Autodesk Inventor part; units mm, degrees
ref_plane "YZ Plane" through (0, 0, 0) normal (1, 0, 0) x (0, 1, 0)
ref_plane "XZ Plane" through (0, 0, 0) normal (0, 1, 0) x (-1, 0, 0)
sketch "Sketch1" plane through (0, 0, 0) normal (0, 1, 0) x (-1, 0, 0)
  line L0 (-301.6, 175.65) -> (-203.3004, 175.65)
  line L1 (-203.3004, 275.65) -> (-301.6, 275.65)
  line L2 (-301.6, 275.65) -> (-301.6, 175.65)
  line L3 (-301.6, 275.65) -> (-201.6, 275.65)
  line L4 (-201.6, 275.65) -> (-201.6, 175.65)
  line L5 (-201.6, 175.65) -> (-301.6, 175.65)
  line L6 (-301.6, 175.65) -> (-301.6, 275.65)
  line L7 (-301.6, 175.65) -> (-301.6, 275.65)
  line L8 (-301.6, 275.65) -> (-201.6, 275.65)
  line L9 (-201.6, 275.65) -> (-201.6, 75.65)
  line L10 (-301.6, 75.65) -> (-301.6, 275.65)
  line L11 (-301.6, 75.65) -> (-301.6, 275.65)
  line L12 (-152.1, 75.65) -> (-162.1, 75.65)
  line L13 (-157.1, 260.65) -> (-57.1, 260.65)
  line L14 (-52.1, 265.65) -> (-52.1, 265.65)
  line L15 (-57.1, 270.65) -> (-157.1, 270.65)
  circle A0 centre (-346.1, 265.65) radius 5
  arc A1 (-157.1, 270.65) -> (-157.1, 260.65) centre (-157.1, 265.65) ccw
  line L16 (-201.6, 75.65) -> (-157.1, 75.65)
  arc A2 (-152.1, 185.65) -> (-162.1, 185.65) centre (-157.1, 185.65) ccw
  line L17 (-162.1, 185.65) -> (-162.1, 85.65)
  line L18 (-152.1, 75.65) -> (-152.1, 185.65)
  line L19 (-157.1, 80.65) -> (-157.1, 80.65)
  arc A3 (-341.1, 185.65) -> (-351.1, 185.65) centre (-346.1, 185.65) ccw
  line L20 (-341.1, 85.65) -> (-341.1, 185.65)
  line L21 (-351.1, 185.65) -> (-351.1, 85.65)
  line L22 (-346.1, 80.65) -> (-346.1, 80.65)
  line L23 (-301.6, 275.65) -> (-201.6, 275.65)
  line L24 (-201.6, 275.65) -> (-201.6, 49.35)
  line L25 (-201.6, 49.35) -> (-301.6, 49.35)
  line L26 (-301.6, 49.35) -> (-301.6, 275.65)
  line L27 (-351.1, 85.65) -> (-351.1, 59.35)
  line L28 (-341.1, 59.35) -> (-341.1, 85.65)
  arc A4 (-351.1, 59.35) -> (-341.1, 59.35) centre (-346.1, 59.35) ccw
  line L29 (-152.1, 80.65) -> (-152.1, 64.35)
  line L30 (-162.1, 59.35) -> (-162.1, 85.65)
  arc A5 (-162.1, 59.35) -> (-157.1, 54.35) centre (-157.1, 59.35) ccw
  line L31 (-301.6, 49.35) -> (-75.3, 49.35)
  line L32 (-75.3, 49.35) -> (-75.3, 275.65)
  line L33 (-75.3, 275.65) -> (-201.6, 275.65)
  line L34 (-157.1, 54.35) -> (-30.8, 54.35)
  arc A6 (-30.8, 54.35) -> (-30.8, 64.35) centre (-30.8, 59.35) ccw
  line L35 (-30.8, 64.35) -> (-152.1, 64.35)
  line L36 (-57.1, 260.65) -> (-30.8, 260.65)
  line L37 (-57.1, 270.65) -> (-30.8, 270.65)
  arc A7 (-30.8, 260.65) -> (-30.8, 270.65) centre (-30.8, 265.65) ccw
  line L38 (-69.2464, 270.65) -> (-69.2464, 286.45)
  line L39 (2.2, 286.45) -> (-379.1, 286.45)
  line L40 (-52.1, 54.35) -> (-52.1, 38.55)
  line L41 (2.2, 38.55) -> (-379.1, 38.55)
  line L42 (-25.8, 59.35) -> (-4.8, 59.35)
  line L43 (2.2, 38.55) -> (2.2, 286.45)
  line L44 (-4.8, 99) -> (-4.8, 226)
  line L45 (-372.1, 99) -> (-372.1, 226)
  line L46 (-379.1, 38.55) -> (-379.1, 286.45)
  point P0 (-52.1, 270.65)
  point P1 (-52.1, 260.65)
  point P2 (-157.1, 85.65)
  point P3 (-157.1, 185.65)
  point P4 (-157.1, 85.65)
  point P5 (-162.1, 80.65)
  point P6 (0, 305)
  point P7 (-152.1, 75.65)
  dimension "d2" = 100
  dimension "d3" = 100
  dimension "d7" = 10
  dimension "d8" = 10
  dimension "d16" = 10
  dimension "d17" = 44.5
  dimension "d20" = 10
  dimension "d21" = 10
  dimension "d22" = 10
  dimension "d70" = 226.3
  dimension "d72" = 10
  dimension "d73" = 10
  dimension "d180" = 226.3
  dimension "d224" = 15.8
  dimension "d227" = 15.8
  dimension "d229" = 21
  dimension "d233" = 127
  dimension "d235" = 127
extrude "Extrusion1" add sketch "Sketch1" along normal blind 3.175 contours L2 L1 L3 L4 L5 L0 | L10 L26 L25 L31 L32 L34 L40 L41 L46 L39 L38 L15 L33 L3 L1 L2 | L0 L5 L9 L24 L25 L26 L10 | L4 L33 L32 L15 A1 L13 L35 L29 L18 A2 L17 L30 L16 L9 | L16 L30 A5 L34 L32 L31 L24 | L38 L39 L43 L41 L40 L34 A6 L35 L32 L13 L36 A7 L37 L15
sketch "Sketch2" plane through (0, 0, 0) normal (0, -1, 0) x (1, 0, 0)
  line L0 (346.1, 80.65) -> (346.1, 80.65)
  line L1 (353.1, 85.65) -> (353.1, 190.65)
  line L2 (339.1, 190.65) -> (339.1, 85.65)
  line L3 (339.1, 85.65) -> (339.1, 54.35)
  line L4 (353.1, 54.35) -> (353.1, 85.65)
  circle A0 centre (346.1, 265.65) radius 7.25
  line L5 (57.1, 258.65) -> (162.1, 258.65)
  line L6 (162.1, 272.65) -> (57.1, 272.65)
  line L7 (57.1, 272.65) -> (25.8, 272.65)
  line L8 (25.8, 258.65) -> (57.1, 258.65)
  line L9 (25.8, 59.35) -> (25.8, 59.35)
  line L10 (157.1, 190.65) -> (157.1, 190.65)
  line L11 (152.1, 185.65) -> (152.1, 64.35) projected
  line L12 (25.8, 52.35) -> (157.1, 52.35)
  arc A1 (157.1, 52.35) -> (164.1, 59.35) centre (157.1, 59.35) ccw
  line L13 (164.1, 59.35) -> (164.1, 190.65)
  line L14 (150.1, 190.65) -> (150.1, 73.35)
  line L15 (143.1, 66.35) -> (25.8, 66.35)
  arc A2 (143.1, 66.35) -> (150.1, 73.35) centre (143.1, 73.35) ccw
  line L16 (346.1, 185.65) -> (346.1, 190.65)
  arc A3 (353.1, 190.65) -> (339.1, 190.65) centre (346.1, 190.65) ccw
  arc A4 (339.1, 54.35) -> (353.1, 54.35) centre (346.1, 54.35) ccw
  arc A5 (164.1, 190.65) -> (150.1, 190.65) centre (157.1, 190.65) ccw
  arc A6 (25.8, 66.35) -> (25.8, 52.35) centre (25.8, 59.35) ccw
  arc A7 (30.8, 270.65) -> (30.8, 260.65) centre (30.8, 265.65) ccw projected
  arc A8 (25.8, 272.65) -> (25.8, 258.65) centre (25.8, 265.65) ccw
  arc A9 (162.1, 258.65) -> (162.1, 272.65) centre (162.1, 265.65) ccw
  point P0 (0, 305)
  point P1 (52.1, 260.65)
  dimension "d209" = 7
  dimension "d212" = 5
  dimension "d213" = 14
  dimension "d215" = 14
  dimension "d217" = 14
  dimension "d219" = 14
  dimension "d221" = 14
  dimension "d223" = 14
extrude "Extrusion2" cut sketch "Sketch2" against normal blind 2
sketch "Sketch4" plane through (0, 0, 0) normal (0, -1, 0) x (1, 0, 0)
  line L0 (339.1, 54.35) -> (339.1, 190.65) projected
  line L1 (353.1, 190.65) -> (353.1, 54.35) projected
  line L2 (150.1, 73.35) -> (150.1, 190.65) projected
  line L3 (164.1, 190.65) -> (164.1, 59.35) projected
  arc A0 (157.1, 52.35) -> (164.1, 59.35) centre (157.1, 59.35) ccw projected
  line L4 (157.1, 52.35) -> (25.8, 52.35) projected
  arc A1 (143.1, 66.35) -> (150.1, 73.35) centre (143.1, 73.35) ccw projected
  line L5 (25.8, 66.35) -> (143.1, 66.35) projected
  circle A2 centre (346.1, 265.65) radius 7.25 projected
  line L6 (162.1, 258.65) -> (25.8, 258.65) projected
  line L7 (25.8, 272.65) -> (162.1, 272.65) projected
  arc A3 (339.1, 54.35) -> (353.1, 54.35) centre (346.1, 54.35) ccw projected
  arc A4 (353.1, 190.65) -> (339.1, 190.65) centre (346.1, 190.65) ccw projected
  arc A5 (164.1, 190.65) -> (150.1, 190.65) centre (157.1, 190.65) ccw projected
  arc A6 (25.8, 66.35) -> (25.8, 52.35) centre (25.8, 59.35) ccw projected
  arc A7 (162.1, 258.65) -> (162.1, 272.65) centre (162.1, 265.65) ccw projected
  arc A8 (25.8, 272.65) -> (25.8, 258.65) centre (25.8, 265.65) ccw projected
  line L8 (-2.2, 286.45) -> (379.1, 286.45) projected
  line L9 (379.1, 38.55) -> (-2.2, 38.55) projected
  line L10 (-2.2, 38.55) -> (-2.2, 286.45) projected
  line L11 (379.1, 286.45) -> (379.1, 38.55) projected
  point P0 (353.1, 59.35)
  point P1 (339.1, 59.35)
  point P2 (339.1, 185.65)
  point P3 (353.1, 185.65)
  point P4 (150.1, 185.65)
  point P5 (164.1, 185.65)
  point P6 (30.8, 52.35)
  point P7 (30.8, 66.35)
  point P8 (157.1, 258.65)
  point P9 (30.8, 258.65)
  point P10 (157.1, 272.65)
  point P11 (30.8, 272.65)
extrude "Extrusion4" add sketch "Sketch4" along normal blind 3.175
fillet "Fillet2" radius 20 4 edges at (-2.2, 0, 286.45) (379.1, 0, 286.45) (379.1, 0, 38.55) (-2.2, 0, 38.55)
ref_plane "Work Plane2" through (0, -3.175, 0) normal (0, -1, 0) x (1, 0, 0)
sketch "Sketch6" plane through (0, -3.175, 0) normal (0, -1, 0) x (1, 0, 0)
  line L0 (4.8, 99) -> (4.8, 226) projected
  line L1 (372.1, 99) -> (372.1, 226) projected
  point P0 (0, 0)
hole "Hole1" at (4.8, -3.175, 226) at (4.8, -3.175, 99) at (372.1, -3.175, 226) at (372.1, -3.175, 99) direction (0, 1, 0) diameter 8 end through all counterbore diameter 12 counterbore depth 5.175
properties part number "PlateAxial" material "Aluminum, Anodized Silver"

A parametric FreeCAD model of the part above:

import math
import FreeCAD as App
import Part
import Sketcher

V = App.Vector


def edges_at(feature, points):
    """Names of the edges that pass closest to the given points."""
    edges = feature.Shape.Edges
    near = lambda p: min(range(len(edges)), key=lambda i: edges[i].distToShape(Part.Vertex(*p))[0])
    return sorted({f"Edge{near(p) + 1}" for p in points})

doc = App.newDocument("Part")
body = doc.addObject("PartDesign::Body", "Body")

# Sketch on XZ plane
sketch1 = doc.addObject("Sketcher::SketchObject", "Sketch")
body.addObject(sketch1)
sketch1.AttachmentSupport = (doc.XZ_Plane, [""])
sketch1.MapMode = "FlatFace"
sketch1.addGeometry([
    Part.LineSegment(V(379, 39, 0), V(-2, 39, 0)),  # 0
    Part.LineSegment(V(-2, 39, 0), V(-2, 286, 0)),  # 1
    Part.LineSegment(V(-2, 286, 0), V(379, 286, 0)),  # 2
    Part.LineSegment(V(379, 286, 0), V(379, 39, 0)),  # 3
    Part.ArcOfCircle(Part.Circle(V(157, 59, 0), V(0, 0, 1), 5), math.radians(-90), math.radians(0)),  # 4
    Part.LineSegment(V(162, 59, 0), V(162, 186, 0)),  # 5
    Part.ArcOfCircle(Part.Circle(V(157, 186, 0), V(0, 0, 1), 5), math.radians(0), math.radians(180)),  # 6
    Part.LineSegment(V(152, 186, 0), V(152, 64, 0)),  # 7
    Part.LineSegment(V(152, 64, 0), V(31, 64, 0)),  # 8
    Part.ArcOfCircle(Part.Circle(V(31, 59, 0), V(0, 0, 1), 5), math.radians(90), math.radians(270)),  # 9
    Part.LineSegment(V(31, 54, 0), V(157, 54, 0)),  # 10
    Part.ArcOfCircle(Part.Circle(V(31, 266, 0), V(0, 0, 1), 5), math.radians(90), math.radians(270)),  # 11
    Part.LineSegment(V(31, 261, 0), V(157, 261, 0)),  # 12
    Part.ArcOfCircle(Part.Circle(V(157, 266, 0), V(0, 0, 1), 5), math.radians(-90), math.radians(90)),  # 13
    Part.LineSegment(V(157, 271, 0), V(31, 271, 0)),  # 14
    Part.ArcOfCircle(Part.Circle(V(346, 59, 0), V(0, 0, 1), 5), math.radians(180), math.radians(360)),  # 15
    Part.LineSegment(V(351, 59, 0), V(351, 186, 0)),  # 16
    Part.ArcOfCircle(Part.Circle(V(346, 186, 0), V(0, 0, 1), 5), math.radians(0), math.radians(180)),  # 17
    Part.LineSegment(V(341, 186, 0), V(341, 59, 0)),  # 18
    Part.Circle(V(346, 266, 0), V(0, 0, 1), 5),  # 19
], False)
sketch1.addConstraint([
    Sketcher.Constraint("Coincident", 0, 2, 1, 1),
    Sketcher.Constraint("Coincident", 1, 2, 2, 1),
    Sketcher.Constraint("Coincident", 2, 2, 3, 1),
    Sketcher.Constraint("Coincident", 3, 2, 0, 1),
    Sketcher.Constraint("Tangent", 4, 2, 5, 1),
    Sketcher.Constraint("Tangent", 5, 2, 6, 1),
    Sketcher.Constraint("Tangent", 6, 2, 7, 1),
    Sketcher.Constraint("Coincident", 7, 2, 8, 1),
    Sketcher.Constraint("Tangent", 8, 2, 9, 1),
    Sketcher.Constraint("Tangent", 9, 2, 10, 1),
    Sketcher.Constraint("Tangent", 10, 2, 4, 1),
    Sketcher.Constraint("Tangent", 11, 2, 12, 1),
    Sketcher.Constraint("Tangent", 12, 2, 13, 1),
    Sketcher.Constraint("Tangent", 13, 2, 14, 1),
    Sketcher.Constraint("Tangent", 14, 2, 11, 1),
    Sketcher.Constraint("Tangent", 15, 2, 16, 1),
    Sketcher.Constraint("Tangent", 16, 2, 17, 1),
    Sketcher.Constraint("Tangent", 17, 2, 18, 1),
    Sketcher.Constraint("Tangent", 18, 2, 15, 1),
    Sketcher.Constraint("Horizontal", 0),
    Sketcher.Constraint("Vertical", 1),
    Sketcher.Constraint("Horizontal", 2),
    Sketcher.Constraint("Vertical", 3),
    Sketcher.Constraint("Vertical", 5),
    Sketcher.Constraint("Vertical", 7),
    Sketcher.Constraint("Horizontal", 8),
    Sketcher.Constraint("Horizontal", 10),
    Sketcher.Constraint("Horizontal", 12),
    Sketcher.Constraint("Horizontal", 14),
    Sketcher.Constraint("Vertical", 16),
    Sketcher.Constraint("Vertical", 18),
    Sketcher.Constraint("Equal", 4, 6),
    Sketcher.Constraint("Equal", 6, 9),
    Sketcher.Constraint("Equal", 9, 11),
    Sketcher.Constraint("Equal", 13, 15),
    Sketcher.Constraint("Equal", 17, 19),
    Sketcher.Constraint("Horizontal", 9, 3, 15, 3),
    Sketcher.Constraint("Horizontal", 6, 3, 17, 3),
    Sketcher.Constraint("Horizontal", 13, 3, 19, 3),
    Sketcher.Constraint("Vertical", 9, 3, 11, 3),
    Sketcher.Constraint("Vertical", 6, 3, 13, 3),
    Sketcher.Constraint("Vertical", 17, 3, 19, 3),
    Sketcher.Constraint("Equal", 14, 5),
    Sketcher.Constraint("Diameter", 19, 10.0),
    Sketcher.Constraint("DistanceY", 0, 2, 9, 2, 15.8),
    Sketcher.Constraint("DistanceY", 14, 2, 1, 2, 15.8),
    Sketcher.Constraint("DistanceX", 0, 2, 0, 1, 381.3),
    Sketcher.Constraint("DistanceX", 8, 2, 8, 1, 121.3),
    Sketcher.Constraint("DistanceY", 1, 1, 1, 2, 247.9),
    Sketcher.Constraint("DistanceX", 4, 3, 15, 3, 189.0),
    Sketcher.Constraint("DistanceX", 0, 2, 9, 3, 33.0),
    Sketcher.Constraint("DistanceX", -1, 1, 4, 3, 157.1),
    Sketcher.Constraint("DistanceY", -1, 1, 4, 3, 59.35),
])
pad1 = doc.addObject("PartDesign::Pad", "Pad")
body.addObject(pad1)
pad1.Profile = sketch1
pad1.Length = 3.175
pad1.Reversed = True

# Sketch on XZ plane
sketch2 = doc.addObject("Sketcher::SketchObject", "Sketch001")
body.addObject(sketch2)
sketch2.AttachmentSupport = (doc.XZ_Plane, [""])
sketch2.MapMode = "FlatFace"
sketch2.addGeometry([
    Part.LineSegment(V(353, 54, 0), V(353, 191, 0)),  # 0
    Part.ArcOfCircle(Part.Circle(V(346, 191, 0), V(0, 0, 1), 7), math.radians(0), math.radians(180)),  # 1
    Part.LineSegment(V(339, 191, 0), V(339, 54, 0)),  # 2
    Part.ArcOfCircle(Part.Circle(V(346, 54, 0), V(0, 0, 1), 7), math.radians(180), math.radians(360)),  # 3
    Part.Circle(V(346, 266, 0), V(0, 0, 1), 7),  # 4
    Part.LineSegment(V(26, 259, 0), V(162, 259, 0)),  # 5
    Part.ArcOfCircle(Part.Circle(V(162, 266, 0), V(0, 0, 1), 7), math.radians(-90), math.radians(90)),  # 6
    Part.LineSegment(V(162, 273, 0), V(26, 273, 0)),  # 7
    Part.ArcOfCircle(Part.Circle(V(26, 266, 0), V(0, 0, 1), 7), math.radians(90), math.radians(270)),  # 8
    Part.ArcOfCircle(Part.Circle(V(26, 59, 0), V(0, 0, 1), 7), math.radians(90), math.radians(270)),  # 9
    Part.LineSegment(V(26, 52, 0), V(157, 52, 0)),  # 10
    Part.ArcOfCircle(Part.Circle(V(157, 59, 0), V(0, 0, 1), 7), math.radians(-90), math.radians(0)),  # 11
    Part.LineSegment(V(164, 59, 0), V(164, 191, 0)),  # 12
    Part.ArcOfCircle(Part.Circle(V(157, 191, 0), V(0, 0, 1), 7), math.radians(0), math.radians(180)),  # 13
    Part.LineSegment(V(150, 191, 0), V(150, 73, 0)),  # 14
    Part.ArcOfCircle(Part.Circle(V(143, 73, 0), V(0, 0, 1), 7), math.radians(-90), math.radians(0)),  # 15
    Part.LineSegment(V(143, 66, 0), V(26, 66, 0)),  # 16
], False)
sketch2.addConstraint([
    Sketcher.Constraint("Tangent", 0, 2, 1, 1),
    Sketcher.Constraint("Tangent", 1, 2, 2, 1),
    Sketcher.Constraint("Tangent", 2, 2, 3, 1),
    Sketcher.Constraint("Tangent", 3, 2, 0, 1),
    Sketcher.Constraint("Tangent", 5, 2, 6, 1),
    Sketcher.Constraint("Tangent", 6, 2, 7, 1),
    Sketcher.Constraint("Tangent", 7, 2, 8, 1),
    Sketcher.Constraint("Tangent", 8, 2, 5, 1),
    Sketcher.Constraint("Tangent", 9, 2, 10, 1),
    Sketcher.Constraint("Tangent", 10, 2, 11, 1),
    Sketcher.Constraint("Tangent", 11, 2, 12, 1),
    Sketcher.Constraint("Tangent", 12, 2, 13, 1),
    Sketcher.Constraint("Tangent", 13, 2, 14, 1),
    Sketcher.Constraint("Tangent", 14, 2, 15, 2),
    Sketcher.Constraint("Tangent", 15, 1, 16, 1),
    Sketcher.Constraint("Tangent", 16, 2, 9, 1),
    Sketcher.Constraint("Vertical", 0),
    Sketcher.Constraint("Vertical", 2),
    Sketcher.Constraint("Horizontal", 5),
    Sketcher.Constraint("Horizontal", 7),
    Sketcher.Constraint("Horizontal", 10),
    Sketcher.Constraint("Vertical", 12),
    Sketcher.Constraint("Vertical", 14),
    Sketcher.Constraint("Horizontal", 16),
    Sketcher.Constraint("Equal", 3, 6),
    Sketcher.Constraint("Equal", 8, 9),
    Sketcher.Constraint("Equal", 9, 11),
    Sketcher.Constraint("Equal", 11, 13),
    Sketcher.Constraint("Equal", 13, 15),
    Sketcher.Constraint("Horizontal", 4, 3, 6, 3),
    Sketcher.Constraint("Horizontal", 1, 3, 13, 3),
    Sketcher.Constraint("Vertical", 3, 3, 4, 3),
    Sketcher.Constraint("Vertical", 8, 3, 9, 3),
    Sketcher.Constraint("Equal", 7, 0),
    Sketcher.Constraint("Equal", 10, 12),
    Sketcher.Constraint("Radius", 1, 7.0),
    Sketcher.Constraint("DistanceY", 3, 3, 9, 3, 5.0),
    Sketcher.Constraint("Diameter", 4, 14.5),
    Sketcher.Constraint("DistanceX", 5, 1, 5, 2, 136.3),
    Sketcher.Constraint("DistanceY", 1, 3, 4, 3, 75.0),
    Sketcher.Constraint("DistanceX", 6, 3, 4, 3, 184.0),
    Sketcher.Constraint("DistanceX", -1, 1, 1, 3, 346.1),
    Sketcher.Constraint("DistanceY", -1, 1, 1, 3, 190.65),
])
pocket1 = doc.addObject("PartDesign::Pocket", "Pocket")
body.addObject(pocket1)
pocket1.Profile = sketch2
pocket1.Length = 2

# Sketch on XZ plane
sketch3 = doc.addObject("Sketcher::SketchObject", "Sketch002")
body.addObject(sketch3)
sketch3.AttachmentSupport = (doc.XZ_Plane, [""])
sketch3.MapMode = "FlatFace"
sketch3.addGeometry([
    Part.LineSegment(V(379, 286, 0), V(-2, 286, 0)),  # 0
    Part.LineSegment(V(-2, 286, 0), V(-2, 39, 0)),  # 1
    Part.LineSegment(V(-2, 39, 0), V(379, 39, 0)),  # 2
    Part.LineSegment(V(379, 39, 0), V(379, 286, 0)),  # 3
    Part.ArcOfCircle(Part.Circle(V(143, 73, 0), V(0, 0, 1), 7), math.radians(-90), math.radians(0)),  # 4
    Part.LineSegment(V(150, 73, 0), V(150, 191, 0)),  # 5
    Part.ArcOfCircle(Part.Circle(V(157, 191, 0), V(0, 0, 1), 7), math.radians(0), math.radians(180)),  # 6
    Part.LineSegment(V(164, 191, 0), V(164, 59, 0)),  # 7
    Part.ArcOfCircle(Part.Circle(V(157, 59, 0), V(0, 0, 1), 7), math.radians(-90), math.radians(0)),  # 8
    Part.LineSegment(V(157, 52, 0), V(26, 52, 0)),  # 9
    Part.ArcOfCircle(Part.Circle(V(26, 59, 0), V(0, 0, 1), 7), math.radians(90), math.radians(270)),  # 10
    Part.LineSegment(V(26, 66, 0), V(143, 66, 0)),  # 11
    Part.ArcOfCircle(Part.Circle(V(346, 54, 0), V(0, 0, 1), 7), math.radians(180), math.radians(360)),  # 12
    Part.LineSegment(V(339, 54, 0), V(339, 191, 0)),  # 13
    Part.ArcOfCircle(Part.Circle(V(346, 191, 0), V(0, 0, 1), 7), math.radians(0), math.radians(180)),  # 14
    Part.LineSegment(V(353, 191, 0), V(353, 54, 0)),  # 15
    Part.ArcOfCircle(Part.Circle(V(162, 266, 0), V(0, 0, 1), 7), math.radians(-90), math.radians(90)),  # 16
    Part.LineSegment(V(162, 259, 0), V(26, 259, 0)),  # 17
    Part.ArcOfCircle(Part.Circle(V(26, 266, 0), V(0, 0, 1), 7), math.radians(90), math.radians(270)),  # 18
    Part.LineSegment(V(26, 273, 0), V(162, 273, 0)),  # 19
    Part.Circle(V(346, 266, 0), V(0, 0, 1), 7),  # 20
], False)
sketch3.addConstraint([
    Sketcher.Constraint("Coincident", 0, 2, 1, 1),
    Sketcher.Constraint("Coincident", 1, 2, 2, 1),
    Sketcher.Constraint("Coincident", 2, 2, 3, 1),
    Sketcher.Constraint("Coincident", 3, 2, 0, 1),
    Sketcher.Constraint("Tangent", 4, 2, 5, 1),
    Sketcher.Constraint("Tangent", 5, 2, 6, 2),
    Sketcher.Constraint("Tangent", 6, 1, 7, 1),
    Sketcher.Constraint("Tangent", 7, 2, 8, 2),
    Sketcher.Constraint("Tangent", 8, 1, 9, 1),
    Sketcher.Constraint("Tangent", 9, 2, 10, 2),
    Sketcher.Constraint("Tangent", 10, 1, 11, 1),
    Sketcher.Constraint("Tangent", 11, 2, 4, 1),
    Sketcher.Constraint("Tangent", 12, 1, 13, 1),
    Sketcher.Constraint("Tangent", 13, 2, 14, 2),
    Sketcher.Constraint("Tangent", 14, 1, 15, 1),
    Sketcher.Constraint("Tangent", 15, 2, 12, 2),
    Sketcher.Constraint("Tangent", 16, 1, 17, 1),
    Sketcher.Constraint("Tangent", 17, 2, 18, 2),
    Sketcher.Constraint("Tangent", 18, 1, 19, 1),
    Sketcher.Constraint("Tangent", 19, 2, 16, 2),
    Sketcher.Constraint("Horizontal", 0),
    Sketcher.Constraint("Vertical", 1),
    Sketcher.Constraint("Horizontal", 2),
    Sketcher.Constraint("Vertical", 3),
    Sketcher.Constraint("Vertical", 5),
    Sketcher.Constraint("Vertical", 7),
    Sketcher.Constraint("Horizontal", 9),
    Sketcher.Constraint("Horizontal", 11),
    Sketcher.Constraint("Vertical", 13),
    Sketcher.Constraint("Vertical", 15),
    Sketcher.Constraint("Horizontal", 17),
    Sketcher.Constraint("Horizontal", 19),
    Sketcher.Constraint("Equal", 4, 6),
    Sketcher.Constraint("Equal", 6, 8),
    Sketcher.Constraint("Equal", 8, 10),
    Sketcher.Constraint("Equal", 10, 12),
    Sketcher.Constraint("Equal", 14, 16),
    Sketcher.Constraint("Horizontal", 6, 3, 14, 3),
    Sketcher.Constraint("Horizontal", 18, 3, 20, 3),
    Sketcher.Constraint("Vertical", 10, 3, 18, 3),
    Sketcher.Constraint("Vertical", 14, 3, 20, 3),
    Sketcher.Constraint("Equal", 11, 5),
    Sketcher.Constraint("Equal", 19, 13),
    Sketcher.Constraint("Radius", 4, 7.0),
    Sketcher.Constraint("Diameter", 20, 14.5),
    Sketcher.Constraint("DistanceX", 0, 2, 0, 1, 381.3),
    Sketcher.Constraint("DistanceX", 9, 2, 9, 1, 131.3),
    Sketcher.Constraint("DistanceX", 17, 2, 17, 1, 136.3),
    Sketcher.Constraint("DistanceY", 1, 2, 1, 1, 247.9),
    Sketcher.Constraint("DistanceX", 8, 3, 12, 3, 189.0),
    Sketcher.Constraint("DistanceY", 6, 3, 16, 3, 75.0),
    Sketcher.Constraint("DistanceX", 0, 2, 18, 3, 28.0),
    Sketcher.Constraint("DistanceX", -1, 1, 4, 3, 143.1),
    Sketcher.Constraint("DistanceY", 18, 3, 0, 2, 20.8),
    Sketcher.Constraint("DistanceY", -1, 1, 4, 3, 73.35),
])
pad2 = doc.addObject("PartDesign::Pad", "Pad001")
body.addObject(pad2)
pad2.Profile = sketch3
pad2.Length = 3.175
doc.recompute()

fillet = doc.addObject("PartDesign::Fillet", "Fillet")
body.addObject(fillet)
fillet.Base = (pad2, edges_at(pad2, [
    (-2.2, 0, 286.45),
    (379.1, 0, 286.45),
    (379.1, 0, 38.55),
    (-2.2, 0, 38.55),
]))
fillet.Radius = 20

# Sketch on XZ plane
sketch4 = doc.addObject("Sketcher::SketchObject", "Sketch003")
body.addObject(sketch4)
sketch4.AttachmentSupport = (doc.XZ_Plane, [""])
sketch4.MapMode = "FlatFace"
sketch4.AttachmentOffset = App.Placement(V(0, 0, 3.175), App.Rotation())
sketch4.addGeometry([
    Part.Circle(V(4.8, 226, 0), V(0, 0, 1), 4),
    Part.Circle(V(4.8, 99, 0), V(0, 0, 1), 4),
    Part.Circle(V(372.1, 226, 0), V(0, 0, 1), 4),
    Part.Circle(V(372.1, 99, 0), V(0, 0, 1), 4),
], False)
sketch4.addConstraint([
    Sketcher.Constraint("Equal", 0, 1),
    Sketcher.Constraint("Equal", 1, 2),
    Sketcher.Constraint("Equal", 2, 3),
    Sketcher.Constraint("Horizontal", 0, 3, 2, 3),
    Sketcher.Constraint("Horizontal", 1, 3, 3, 3),
    Sketcher.Constraint("Vertical", 0, 3, 1, 3),
    Sketcher.Constraint("Vertical", 2, 3, 3, 3),
    Sketcher.Constraint("Diameter", 0, 8.0),
    Sketcher.Constraint("DistanceY", -1, 1, 0, 3, 226.0),
    Sketcher.Constraint("DistanceY", -1, 1, 1, 3, 99.0),
    Sketcher.Constraint("DistanceX", -1, 1, 0, 3, 4.8),
    Sketcher.Constraint("DistanceX", -1, 1, 2, 3, 372.1),
])
doc.recompute()
hole = doc.addObject("PartDesign::Hole", "Hole")
body.addObject(hole)
hole.Profile = sketch4
hole.ThreadType = "None"
hole.Diameter = 8
hole.DepthType = "ThroughAll"
hole.HoleCutType = "Counterbore"
hole.HoleCutDiameter = 12
hole.HoleCutDepth = 5.175

doc.recompute()
